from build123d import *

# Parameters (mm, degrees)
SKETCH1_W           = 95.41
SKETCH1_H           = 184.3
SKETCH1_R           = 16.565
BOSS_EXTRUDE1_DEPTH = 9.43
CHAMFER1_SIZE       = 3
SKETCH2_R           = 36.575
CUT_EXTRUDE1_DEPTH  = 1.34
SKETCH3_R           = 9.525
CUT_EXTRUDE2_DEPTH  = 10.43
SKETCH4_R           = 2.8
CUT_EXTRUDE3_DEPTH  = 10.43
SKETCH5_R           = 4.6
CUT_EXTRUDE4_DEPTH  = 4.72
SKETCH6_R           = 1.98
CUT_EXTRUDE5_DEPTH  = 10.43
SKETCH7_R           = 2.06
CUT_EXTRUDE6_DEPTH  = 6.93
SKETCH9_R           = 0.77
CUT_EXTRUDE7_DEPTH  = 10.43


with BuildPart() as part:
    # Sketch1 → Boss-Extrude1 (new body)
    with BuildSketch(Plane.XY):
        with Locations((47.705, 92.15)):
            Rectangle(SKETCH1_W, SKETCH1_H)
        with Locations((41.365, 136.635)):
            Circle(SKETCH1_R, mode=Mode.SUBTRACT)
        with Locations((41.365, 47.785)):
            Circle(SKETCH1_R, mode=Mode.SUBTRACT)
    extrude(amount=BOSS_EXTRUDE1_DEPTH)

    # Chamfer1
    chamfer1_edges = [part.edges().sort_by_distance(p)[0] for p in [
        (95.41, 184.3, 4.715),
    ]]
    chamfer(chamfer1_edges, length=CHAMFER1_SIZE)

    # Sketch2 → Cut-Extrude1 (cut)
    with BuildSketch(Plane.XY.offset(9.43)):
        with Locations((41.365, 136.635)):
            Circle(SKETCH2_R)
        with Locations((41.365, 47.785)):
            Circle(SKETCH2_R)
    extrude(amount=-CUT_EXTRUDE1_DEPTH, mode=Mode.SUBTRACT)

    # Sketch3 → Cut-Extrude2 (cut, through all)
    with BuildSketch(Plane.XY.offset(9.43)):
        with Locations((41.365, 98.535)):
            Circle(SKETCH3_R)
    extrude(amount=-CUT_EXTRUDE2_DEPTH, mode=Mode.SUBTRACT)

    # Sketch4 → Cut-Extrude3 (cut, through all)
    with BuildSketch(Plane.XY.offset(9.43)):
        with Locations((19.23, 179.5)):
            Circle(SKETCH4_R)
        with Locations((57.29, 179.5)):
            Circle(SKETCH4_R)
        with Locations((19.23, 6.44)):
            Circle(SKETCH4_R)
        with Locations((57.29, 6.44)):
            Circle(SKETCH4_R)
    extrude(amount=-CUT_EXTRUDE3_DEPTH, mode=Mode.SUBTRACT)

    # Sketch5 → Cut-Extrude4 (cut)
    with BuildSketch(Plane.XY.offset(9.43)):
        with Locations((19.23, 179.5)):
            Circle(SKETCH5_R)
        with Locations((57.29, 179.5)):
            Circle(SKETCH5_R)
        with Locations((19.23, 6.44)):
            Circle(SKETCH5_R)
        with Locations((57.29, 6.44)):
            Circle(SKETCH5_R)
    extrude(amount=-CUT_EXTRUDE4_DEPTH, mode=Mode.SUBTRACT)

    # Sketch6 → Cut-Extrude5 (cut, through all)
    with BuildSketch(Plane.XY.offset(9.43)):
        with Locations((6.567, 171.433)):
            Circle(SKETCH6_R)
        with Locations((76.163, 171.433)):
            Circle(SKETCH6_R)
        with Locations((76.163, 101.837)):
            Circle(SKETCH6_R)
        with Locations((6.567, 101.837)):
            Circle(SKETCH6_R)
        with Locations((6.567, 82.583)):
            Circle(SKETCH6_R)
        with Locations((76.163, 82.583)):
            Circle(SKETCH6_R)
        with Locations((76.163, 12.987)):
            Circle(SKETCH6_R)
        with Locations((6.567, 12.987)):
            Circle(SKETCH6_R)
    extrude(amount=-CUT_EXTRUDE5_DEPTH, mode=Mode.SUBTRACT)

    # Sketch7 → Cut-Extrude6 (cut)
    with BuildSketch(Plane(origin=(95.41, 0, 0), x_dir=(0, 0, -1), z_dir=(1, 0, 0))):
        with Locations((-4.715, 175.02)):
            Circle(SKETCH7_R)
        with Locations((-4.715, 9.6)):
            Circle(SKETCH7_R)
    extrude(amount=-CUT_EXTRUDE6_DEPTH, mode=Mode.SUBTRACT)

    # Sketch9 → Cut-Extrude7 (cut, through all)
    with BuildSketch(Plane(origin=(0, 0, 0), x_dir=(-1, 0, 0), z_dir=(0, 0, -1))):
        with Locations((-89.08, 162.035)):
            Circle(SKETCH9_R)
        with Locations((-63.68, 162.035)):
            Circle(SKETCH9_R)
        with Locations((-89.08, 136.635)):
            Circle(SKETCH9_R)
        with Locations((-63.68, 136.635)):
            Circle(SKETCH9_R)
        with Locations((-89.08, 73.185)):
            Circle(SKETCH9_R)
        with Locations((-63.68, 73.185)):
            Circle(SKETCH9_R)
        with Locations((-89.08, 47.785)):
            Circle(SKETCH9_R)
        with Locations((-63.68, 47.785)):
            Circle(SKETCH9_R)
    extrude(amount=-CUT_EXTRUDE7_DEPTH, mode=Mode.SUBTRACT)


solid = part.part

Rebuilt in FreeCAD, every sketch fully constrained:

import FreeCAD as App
import Part
import Sketcher
Q = App.Units.Quantity


def edges_at(feature, points):
    """Names of the edges that pass closest to the given points."""
    edges = feature.Shape.Edges
    near = lambda p: min(range(len(edges)), key=lambda i: edges[i].distToShape(Part.Vertex(*p))[0])
    return sorted({f"Edge{near(p) + 1}" for p in points})

doc = App.newDocument("Part")
params = doc.addObject("Spreadsheet::Sheet", "Params")
for row, (alias, value) in enumerate([
    ("sketch1_diameter", "33.13 mm"),
    ("sketch1_height", "184.3 mm"),
    ("sketch1_width", "95.41 mm"),
    ("pad1_length", "9.43 mm"),
    ("chamfer_size", "3 mm"),
    ("sketch2_diameter", "73.15 mm"),
    ("pocket1_length", "1.34 mm"),
    ("sketch3_diameter", "19.05 mm"),
    ("sketch4_diameter", "5.6 mm"),
    ("sketch5_diameter", "9.2 mm"),
    ("pocket4_length", "4.72 mm"),
    ("sketch6_diameter", "3.96 mm"),
    ("sketch7_diameter", "4.12 mm"),
    ("pocket6_length", "6.93 mm"),
    ("sketch8_diameter", "1.54 mm"),
], start=1):
    params.set(f"A{row}", alias)
    params.set(f"B{row}", "=" + value)
    params.setAlias(f"B{row}", alias)

body = doc.addObject("PartDesign::Body", "Body")

# Sketch on XY plane
sketch1 = body.newObject("Sketcher::SketchObject", "Sketch")
sketch1.AttachmentSupport = (doc.getObject("XY_Plane"), [""])
sketch1.MapMode = "FlatFace"
sketch1.addGeometry([
    Part.LineSegment(App.Vector(0, 184, 0), App.Vector(0, 0, 0)),  # 0
    Part.LineSegment(App.Vector(0, 0, 0), App.Vector(95, 0, 0)),  # 1
    Part.LineSegment(App.Vector(95, 0, 0), App.Vector(95, 184, 0)),  # 2
    Part.LineSegment(App.Vector(95, 184, 0), App.Vector(0, 184, 0)),  # 3
    Part.Circle(App.Vector(41, 48, 0), App.Vector(0, 0, 1), 17),  # 4
    Part.Circle(App.Vector(41, 137, 0), App.Vector(0, 0, 1), 17),  # 5
], False)
sketch1.addConstraint([
    Sketcher.Constraint("Coincident", 0, 2, 1, 1),
    Sketcher.Constraint("Coincident", 1, 2, 2, 1),
    Sketcher.Constraint("Coincident", 2, 2, 3, 1),
    Sketcher.Constraint("Coincident", 3, 2, 0, 1),
    Sketcher.Constraint("Vertical", 0),
    Sketcher.Constraint("Horizontal", 1),
    Sketcher.Constraint("Vertical", 2),
    Sketcher.Constraint("Horizontal", 3),
    Sketcher.Constraint("Coincident", 0, 2, -1, 1),
    Sketcher.Constraint("Equal", 4, 5),
    Sketcher.Constraint("Vertical", 4, 3, 5, 3),
    Sketcher.Constraint("Diameter", 4, Q("33.13 mm")),
    Sketcher.Constraint("DistanceY", 0, 2, 0, 1, Q("184.3 mm")),
    Sketcher.Constraint("DistanceX", 1, 1, 1, 2, Q("95.41 mm")),
    Sketcher.Constraint("DistanceY", 4, 3, 5, 3, Q("88.85 mm")),
    Sketcher.Constraint("DistanceX", -1, 1, 4, 3, Q("41.365 mm")),
    Sketcher.Constraint("DistanceY", -1, 1, 4, 3, Q("47.785 mm")),
])
sketch1.setExpression("Constraints[11]", "Params.sketch1_diameter")
sketch1.setExpression("Constraints[12]", "Params.sketch1_height")
sketch1.setExpression("Constraints[13]", "Params.sketch1_width")
pad1 = body.newObject("PartDesign::Pad", "Pad")
pad1.Profile = sketch1
pad1.setExpression("Length", "Params.pad1_length")
doc.recompute()

chamfer = body.newObject("PartDesign::Chamfer", "Chamfer")
chamfer.Base = (pad1, edges_at(pad1, [(95.41, 184.3, 4.715)]))
chamfer.setExpression("Size", "Params.chamfer_size")

# Sketch on XY plane
sketch2 = body.newObject("Sketcher::SketchObject", "Sketch001")
sketch2.AttachmentSupport = (doc.getObject("XY_Plane"), [""])
sketch2.MapMode = "FlatFace"
sketch2.AttachmentOffset = App.Placement(App.Vector(0, 0, 9.43), App.Rotation())
sketch2.addGeometry([
    Part.Circle(App.Vector(41, 137, 0), App.Vector(0, 0, 1), 37),
    Part.Circle(App.Vector(41, 48, 0), App.Vector(0, 0, 1), 37),
], False)
sketch2.addConstraint([
    Sketcher.Constraint("Equal", 0, 1),
    Sketcher.Constraint("Vertical", 0, 3, 1, 3),
    Sketcher.Constraint("Diameter", 0, Q("73.15 mm")),
    Sketcher.Constraint("DistanceY", 1, 3, 0, 3, Q("88.85 mm")),
    Sketcher.Constraint("DistanceX", -1, 1, 0, 3, Q("41.365 mm")),
    Sketcher.Constraint("DistanceY", -1, 1, 0, 3, Q("136.635 mm")),
])
sketch2.setExpression("Constraints[2]", "Params.sketch2_diameter")
pocket1 = body.newObject("PartDesign::Pocket", "Pocket")
pocket1.Profile = sketch2
pocket1.setExpression("Length", "Params.pocket1_length")

# Sketch on XY plane
sketch3 = body.newObject("Sketcher::SketchObject", "Sketch002")
sketch3.AttachmentSupport = (doc.getObject("XY_Plane"), [""])
sketch3.MapMode = "FlatFace"
sketch3.AttachmentOffset = App.Placement(App.Vector(0, 0, 9.43), App.Rotation())
sketch3.addGeometry(Part.Circle(App.Vector(41, 99, 0), App.Vector(0, 0, 1), 10), False)
sketch3.addConstraint([
    Sketcher.Constraint("Diameter", 0, Q("19.05 mm")),
    Sketcher.Constraint("DistanceX", -1, 1, 0, 3, Q("41.365 mm")),
    Sketcher.Constraint("DistanceY", -1, 1, 0, 3, Q("98.535 mm")),
])
sketch3.setExpression("Constraints[0]", "Params.sketch3_diameter")
pocket2 = body.newObject("PartDesign::Pocket", "Pocket001")
pocket2.Profile = sketch3
pocket2.Type = "ThroughAll"

# Sketch on XY plane
sketch4 = body.newObject("Sketcher::SketchObject", "Sketch003")
sketch4.AttachmentSupport = (doc.getObject("XY_Plane"), [""])
sketch4.MapMode = "FlatFace"
sketch4.AttachmentOffset = App.Placement(App.Vector(0, 0, 9.43), App.Rotation())
sketch4.addGeometry([
    Part.Circle(App.Vector(19.2, 179.5, 0), App.Vector(0, 0, 1), 2.8),
    Part.Circle(App.Vector(57.3, 179.5, 0), App.Vector(0, 0, 1), 2.8),
    Part.Circle(App.Vector(19.2, 6.4, 0), App.Vector(0, 0, 1), 2.8),
    Part.Circle(App.Vector(57.3, 6.4, 0), App.Vector(0, 0, 1), 2.8),
], False)
sketch4.addConstraint([
    Sketcher.Constraint("Equal", 0, 1),
    Sketcher.Constraint("Equal", 1, 2),
    Sketcher.Constraint("Equal", 2, 3),
    Sketcher.Constraint("Horizontal", 0, 3, 1, 3),
    Sketcher.Constraint("Horizontal", 2, 3, 3, 3),
    Sketcher.Constraint("Vertical", 0, 3, 2, 3),
    Sketcher.Constraint("Vertical", 1, 3, 3, 3),
    Sketcher.Constraint("Diameter", 0, Q("5.6 mm")),
    Sketcher.Constraint("DistanceY", -1, 1, 0, 3, Q("179.5 mm")),
    Sketcher.Constraint("DistanceX", -1, 1, 0, 3, Q("19.23 mm")),
    Sketcher.Constraint("DistanceX", -1, 1, 1, 3, Q("57.29 mm")),
    Sketcher.Constraint("DistanceY", -1, 1, 2, 3, Q("6.44 mm")),
])
sketch4.setExpression("Constraints[7]", "Params.sketch4_diameter")
pocket3 = body.newObject("PartDesign::Pocket", "Pocket002")
pocket3.Profile = sketch4
pocket3.Type = "ThroughAll"

# Sketch on XY plane
sketch5 = body.newObject("Sketcher::SketchObject", "Sketch004")
sketch5.AttachmentSupport = (doc.getObject("XY_Plane"), [""])
sketch5.MapMode = "FlatFace"
sketch5.AttachmentOffset = App.Placement(App.Vector(0, 0, 9.43), App.Rotation())
sketch5.addGeometry([
    Part.Circle(App.Vector(19.2, 179.5, 0), App.Vector(0, 0, 1), 4.6),
    Part.Circle(App.Vector(57.3, 179.5, 0), App.Vector(0, 0, 1), 4.6),
    Part.Circle(App.Vector(19.2, 6.4, 0), App.Vector(0, 0, 1), 4.6),
    Part.Circle(App.Vector(57.3, 6.4, 0), App.Vector(0, 0, 1), 4.6),
], False)
sketch5.addConstraint([
    Sketcher.Constraint("Equal", 0, 1),
    Sketcher.Constraint("Equal", 1, 2),
    Sketcher.Constraint("Equal", 2, 3),
    Sketcher.Constraint("Horizontal", 0, 3, 1, 3),
    Sketcher.Constraint("Horizontal", 2, 3, 3, 3),
    Sketcher.Constraint("Vertical", 0, 3, 2, 3),
    Sketcher.Constraint("Vertical", 1, 3, 3, 3),
    Sketcher.Constraint("Diameter", 0, Q("9.2 mm")),
    Sketcher.Constraint("DistanceY", -1, 1, 0, 3, Q("179.5 mm")),
    Sketcher.Constraint("DistanceX", -1, 1, 0, 3, Q("19.23 mm")),
    Sketcher.Constraint("DistanceX", -1, 1, 1, 3, Q("57.29 mm")),
    Sketcher.Constraint("DistanceY", -1, 1, 2, 3, Q("6.44 mm")),
])
sketch5.setExpression("Constraints[7]", "Params.sketch5_diameter")
pocket4 = body.newObject("PartDesign::Pocket", "Pocket003")
pocket4.Profile = sketch5
pocket4.setExpression("Length", "Params.pocket4_length")

# Sketch on XY plane
sketch6 = body.newObject("Sketcher::SketchObject", "Sketch005")
sketch6.AttachmentSupport = (doc.getObject("XY_Plane"), [""])
sketch6.MapMode = "FlatFace"
sketch6.AttachmentOffset = App.Placement(App.Vector(0, 0, 9.43), App.Rotation())
sketch6.addGeometry([
    Part.Circle(App.Vector(6.6, 171.4, 0), App.Vector(0, 0, 1), 2),  # 0
    Part.Circle(App.Vector(76.2, 171.4, 0), App.Vector(0, 0, 1), 2),  # 1
    Part.Circle(App.Vector(76.2, 101.8, 0), App.Vector(0, 0, 1), 2),  # 2
    Part.Circle(App.Vector(6.6, 101.8, 0), App.Vector(0, 0, 1), 2),  # 3
    Part.Circle(App.Vector(6.6, 82.6, 0), App.Vector(0, 0, 1), 2),  # 4
    Part.Circle(App.Vector(76.2, 82.6, 0), App.Vector(0, 0, 1), 2),  # 5
    Part.Circle(App.Vector(76.2, 13, 0), App.Vector(0, 0, 1), 2),  # 6
    Part.Circle(App.Vector(6.6, 13, 0), App.Vector(0, 0, 1), 2),  # 7
], False)
sketch6.addConstraint([
    Sketcher.Constraint("Equal", 0, 1),
    Sketcher.Constraint("Equal", 1, 2),
    Sketcher.Constraint("Equal", 2, 3),
    Sketcher.Constraint("Equal", 3, 4),
    Sketcher.Constraint("Equal", 4, 5),
    Sketcher.Constraint("Equal", 5, 6),
    Sketcher.Constraint("Equal", 6, 7),
    Sketcher.Constraint("Horizontal", 0, 3, 1, 3),
    Sketcher.Constraint("Horizontal", 2, 3, 3, 3),
    Sketcher.Constraint("Horizontal", 4, 3, 5, 3),
    Sketcher.Constraint("Horizontal", 6, 3, 7, 3),
    Sketcher.Constraint("Vertical", 1, 3, 2, 3),
    Sketcher.Constraint("Vertical", 0, 3, 3, 3),
    Sketcher.Constraint("Vertical", 3, 3, 4, 3),
    Sketcher.Constraint("Vertical", 2, 3, 5, 3),
    Sketcher.Constraint("Vertical", 5, 3, 6, 3),
    Sketcher.Constraint("Vertical", 4, 3, 7, 3),
    Sketcher.Constraint("Diameter", 0, Q("3.96 mm")),
    Sketcher.Constraint("DistanceY", 4, 3, 0, 3, Q("88.85 mm")),
    Sketcher.Constraint("DistanceY", 6, 3, 2, 3, Q("88.85 mm")),
    Sketcher.Constraint("DistanceX", -1, 1, 0, 3, Q("6.567 mm")),
    Sketcher.Constraint("DistanceY", -1, 1, 0, 3, Q("171.433 mm")),
    Sketcher.Constraint("DistanceX", -1, 1, 1, 3, Q("76.163 mm")),
    Sketcher.Constraint("DistanceY", -1, 1, 2, 3, Q("101.837 mm")),
])
sketch6.setExpression("Constraints[17]", "Params.sketch6_diameter")
pocket5 = body.newObject("PartDesign::Pocket", "Pocket004")
pocket5.Profile = sketch6
pocket5.Type = "ThroughAll"

# Sketch on YZ plane
sketch7 = body.newObject("Sketcher::SketchObject", "Sketch006")
sketch7.AttachmentSupport = (doc.getObject("YZ_Plane"), [""])
sketch7.MapMode = "FlatFace"
sketch7.AttachmentOffset = App.Placement(App.Vector(0, 0, 95.41), App.Rotation())
sketch7.addGeometry([
    Part.Circle(App.Vector(175, 4.7, 0), App.Vector(0, 0, 1), 2.1),
    Part.Circle(App.Vector(9.6, 4.7, 0), App.Vector(0, 0, 1), 2.1),
], False)
sketch7.addConstraint([
    Sketcher.Constraint("Equal", 0, 1),
    Sketcher.Constraint("Horizontal", 0, 3, 1, 3),
    Sketcher.Constraint("Diameter", 0, Q("4.12 mm")),
    Sketcher.Constraint("DistanceX", -1, 1, 1, 3, Q("9.6 mm")),
    Sketcher.Constraint("DistanceX", -1, 1, 0, 3, Q("175.02 mm")),
    Sketcher.Constraint("DistanceY", -1, 1, 0, 3, Q("4.715 mm")),
])
sketch7.setExpression("Constraints[2]", "Params.sketch7_diameter")
pocket6 = body.newObject("PartDesign::Pocket", "Pocket005")
pocket6.Profile = sketch7
pocket6.setExpression("Length", "Params.pocket6_length")

# Sketch on XY plane
sketch8 = body.newObject("Sketcher::SketchObject", "Sketch007")
sketch8.AttachmentSupport = (doc.getObject("XY_Plane"), [""])
sketch8.MapMode = "FlatFace"
sketch8.addGeometry([
    Part.Circle(App.Vector(89.1, 162, 0), App.Vector(0, 0, 1), 0.8),  # 0
    Part.Circle(App.Vector(63.7, 162, 0), App.Vector(0, 0, 1), 0.8),  # 1
    Part.Circle(App.Vector(89.1, 136.6, 0), App.Vector(0, 0, 1), 0.8),  # 2
    Part.Circle(App.Vector(63.7, 136.6, 0), App.Vector(0, 0, 1), 0.8),  # 3
    Part.Circle(App.Vector(89.1, 73.2, 0), App.Vector(0, 0, 1), 0.8),  # 4
    Part.Circle(App.Vector(63.7, 73.2, 0), App.Vector(0, 0, 1), 0.8),  # 5
    Part.Circle(App.Vector(89.1, 47.8, 0), App.Vector(0, 0, 1), 0.8),  # 6
    Part.Circle(App.Vector(63.7, 47.8, 0), App.Vector(0, 0, 1), 0.8),  # 7
], False)
sketch8.addConstraint([
    Sketcher.Constraint("Equal", 0, 1),
    Sketcher.Constraint("Equal", 1, 2),
    Sketcher.Constraint("Equal", 2, 3),
    Sketcher.Constraint("Equal", 3, 4),
    Sketcher.Constraint("Equal", 4, 5),
    Sketcher.Constraint("Equal", 5, 6),
    Sketcher.Constraint("Equal", 6, 7),
    Sketcher.Constraint("Horizontal", 0, 3, 1, 3),
    Sketcher.Constraint("Horizontal", 2, 3, 3, 3),
    Sketcher.Constraint("Horizontal", 4, 3, 5, 3),
    Sketcher.Constraint("Horizontal", 6, 3, 7, 3),
    Sketcher.Constraint("Vertical", 0, 3, 2, 3),
    Sketcher.Constraint("Vertical", 1, 3, 3, 3),
    Sketcher.Constraint("Vertical", 2, 3, 4, 3),
    Sketcher.Constraint("Vertical", 3, 3, 5, 3),
    Sketcher.Constraint("Vertical", 4, 3, 6, 3),
    Sketcher.Constraint("Vertical", 5, 3, 7, 3),
    Sketcher.Constraint("Diameter", 0, Q("1.54 mm")),
    Sketcher.Constraint("DistanceX", 1, 3, 0, 3, Q("25.4 mm")),
    Sketcher.Constraint("DistanceY", 2, 3, 0, 3, Q("25.4 mm")),
    Sketcher.Constraint("DistanceY", 6, 3, 4, 3, Q("25.4 mm")),
    Sketcher.Constraint("DistanceX", -1, 1, 0, 3, Q("89.08 mm")),
    Sketcher.Constraint("DistanceY", 4, 3, 2, 3, Q("63.45 mm")),
    Sketcher.Constraint("DistanceY", -1, 1, 0, 3, Q("162.035 mm")),
])
sketch8.setExpression("Constraints[17]", "Params.sketch8_diameter")
pocket7 = body.newObject("PartDesign::Pocket", "Pocket006")
pocket7.Profile = sketch8
pocket7.Type = "ThroughAll"
pocket7.Reversed = True

doc.recompute()
